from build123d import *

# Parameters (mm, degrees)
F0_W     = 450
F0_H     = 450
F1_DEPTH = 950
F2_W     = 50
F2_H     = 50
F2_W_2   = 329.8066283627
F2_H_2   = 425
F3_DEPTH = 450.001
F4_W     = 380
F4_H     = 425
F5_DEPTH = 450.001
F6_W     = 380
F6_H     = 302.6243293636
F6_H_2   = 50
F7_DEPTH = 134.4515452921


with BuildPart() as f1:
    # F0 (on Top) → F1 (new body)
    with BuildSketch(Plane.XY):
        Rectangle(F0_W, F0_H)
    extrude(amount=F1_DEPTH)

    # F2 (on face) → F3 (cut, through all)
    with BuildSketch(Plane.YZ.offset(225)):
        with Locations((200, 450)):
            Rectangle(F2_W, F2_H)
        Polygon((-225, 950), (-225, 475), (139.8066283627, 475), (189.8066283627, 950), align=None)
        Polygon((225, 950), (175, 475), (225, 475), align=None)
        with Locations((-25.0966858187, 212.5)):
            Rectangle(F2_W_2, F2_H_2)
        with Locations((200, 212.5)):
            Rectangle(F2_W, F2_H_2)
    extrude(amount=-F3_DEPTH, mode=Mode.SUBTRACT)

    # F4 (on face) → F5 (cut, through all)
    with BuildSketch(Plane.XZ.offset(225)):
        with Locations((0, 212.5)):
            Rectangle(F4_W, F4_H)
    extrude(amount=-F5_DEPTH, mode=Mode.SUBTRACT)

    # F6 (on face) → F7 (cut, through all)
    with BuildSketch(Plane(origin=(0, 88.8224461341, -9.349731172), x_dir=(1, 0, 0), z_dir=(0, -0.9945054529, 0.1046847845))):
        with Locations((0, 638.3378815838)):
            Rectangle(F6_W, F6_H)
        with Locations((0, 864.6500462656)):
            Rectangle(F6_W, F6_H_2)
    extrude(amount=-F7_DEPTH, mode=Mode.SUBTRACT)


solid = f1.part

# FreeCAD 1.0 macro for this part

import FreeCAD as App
import Part
import Sketcher


def add_polygon(sketch, points):
    """Adds a closed chain of lines whose ends are joined by coincident constraints."""
    first, n = sketch.GeometryCount, len(points)
    for a, b in zip(points, points[1:] + points[:1]):
        sketch.addGeometry(Part.LineSegment(App.Vector(*a, 0), App.Vector(*b, 0)), False)
    for i in range(n):
        sketch.addConstraint(Sketcher.Constraint("Coincident", first + i, 2, first + (i + 1) % n, 1))

doc = App.newDocument("Part")
body = doc.addObject("PartDesign::Body", "Body")

# Sketch on XY plane
sketch1 = body.newObject("Sketcher::SketchObject", "Sketch")
sketch1.AttachmentSupport = (doc.getObject("XY_Plane"), [""])
sketch1.MapMode = "FlatFace"
add_polygon(sketch1, [(-225, 225), (-225, -225), (225, -225), (225, 225)])  # lines 0-3
sketch1.addConstraint([
    Sketcher.Constraint("Vertical", 0),
    Sketcher.Constraint("Horizontal", 1),
    Sketcher.Constraint("Vertical", 2),
    Sketcher.Constraint("Horizontal", 3),
    Sketcher.Constraint("Symmetric", 0, 2, 2, 2, -1, 1),
    Sketcher.Constraint("Equal", 3, 0),
    Sketcher.Constraint("DistanceX", 1, 1, 1, 2, 450.0),
])
pad1 = body.newObject("PartDesign::Pad", "Pad")
pad1.Profile = sketch1
pad1.Length = 950

# Sketch on YZ plane
sketch2 = body.newObject("Sketcher::SketchObject", "Sketch001")
sketch2.AttachmentSupport = (doc.getObject("YZ_Plane"), [""])
sketch2.MapMode = "FlatFace"
sketch2.AttachmentOffset = App.Placement(App.Vector(0, 0, 225), App.Rotation())
add_polygon(sketch2, [(175, 475), (175, 0), (225, 0), (225, 950)])  # lines 0-3
add_polygon(sketch2, [(-225, 950), (-225, 475), (140, 475), (190, 950)])  # lines 4-7
add_polygon(sketch2, [(-190, 425), (-190, 0), (140, 0), (140, 425)])  # lines 8-11
sketch2.addConstraint([
    Sketcher.Constraint("Vertical", 0),
    Sketcher.Constraint("Horizontal", 1),
    Sketcher.Constraint("Vertical", 2),
    Sketcher.Constraint("Vertical", 4),
    Sketcher.Constraint("Horizontal", 5),
    Sketcher.Constraint("Horizontal", 7),
    Sketcher.Constraint("Vertical", 8),
    Sketcher.Constraint("Horizontal", 9),
    Sketcher.Constraint("Vertical", 10),
    Sketcher.Constraint("Horizontal", 11),
    Sketcher.Constraint("Symmetric", 2, 2, 7, 2, -2),
    Sketcher.Constraint("PointOnObject", 0, 2, -1),
    Sketcher.Constraint("PointOnObject", 8, 2, -1),
    Sketcher.Constraint("Parallel", 3, 6),
    Sketcher.Constraint("Horizontal", 3, 2, 4, 2),
    Sketcher.Constraint("Vertical", 5, 2, 9, 2),
    Sketcher.Constraint("Equal", 0, 4),
    Sketcher.Constraint("DistanceX", 1, 1, 1, 2, 50.0),
    Sketcher.Constraint("DistanceY", 0, 2, 0, 1, 475.0),
    Sketcher.Constraint("DistanceY", 8, 2, 8, 1, 425.0),
    Sketcher.Constraint("DistanceX", -1, 1, 0, 2, 175.0),
    Sketcher.Constraint("DistanceX", 8, 2, -1, 1, 190.0),
    Sketcher.Constraint("DistanceX", 5, 1, 5, 2, 364.806628),
])
pocket1 = body.newObject("PartDesign::Pocket", "Pocket")
pocket1.Profile = sketch2
pocket1.Type = "ThroughAll"

# Sketch on XZ plane
sketch3 = body.newObject("Sketcher::SketchObject", "Sketch002")
sketch3.AttachmentSupport = (doc.getObject("XZ_Plane"), [""])
sketch3.MapMode = "FlatFace"
sketch3.AttachmentOffset = App.Placement(App.Vector(0, 0, 225), App.Rotation())
add_polygon(sketch3, [(-190, 425), (-190, 0), (190, 0), (190, 425)])  # lines 0-3
sketch3.addConstraint([
    Sketcher.Constraint("Vertical", 0),
    Sketcher.Constraint("Horizontal", 1),
    Sketcher.Constraint("Vertical", 2),
    Sketcher.Constraint("Horizontal", 3),
    Sketcher.Constraint("Symmetric", 0, 2, 1, 2, -1, 1),
    Sketcher.Constraint("DistanceX", 1, 1, 1, 2, 380.0),
    Sketcher.Constraint("DistanceY", 0, 2, 0, 1, 425.0),
])
pocket2 = body.newObject("PartDesign::Pocket", "Pocket001")
pocket2.Profile = sketch3
pocket2.Type = "ThroughAll"

# Sketch on an angled plane
sketch4 = body.newObject("Sketcher::SketchObject", "Sketch003")
sketch4.Placement = App.Placement(App.Vector(0, 88.822446, -9.349731), App.Rotation(App.Vector(1, 0, 0), App.Vector(0, 0.104684785, 0.994505453), App.Vector(0, -0.994505453, 0.104684785), "ZXY"))
add_polygon(sketch4, [(-190, 790), (-190, 487), (190, 487), (190, 790)])  # lines 0-3
add_polygon(sketch4, [(-190, 890), (-190, 840), (190, 840), (190, 890)])  # lines 4-7
sketch4.addConstraint([
    Sketcher.Constraint("Vertical", 0),
    Sketcher.Constraint("Horizontal", 1),
    Sketcher.Constraint("Vertical", 2),
    Sketcher.Constraint("Horizontal", 3),
    Sketcher.Constraint("Vertical", 4),
    Sketcher.Constraint("Horizontal", 5),
    Sketcher.Constraint("Vertical", 6),
    Sketcher.Constraint("Horizontal", 7),
    Sketcher.Constraint("Vertical", 3, 2, 4, 2),
    Sketcher.Constraint("Vertical", 2, 2, 5, 2),
    Sketcher.Constraint("DistanceX", 1, 1, 1, 2, 380.0),
    Sketcher.Constraint("DistanceY", 4, 2, 4, 1, 50.0),
    Sketcher.Constraint("DistanceX", 0, 2, -1, 1, 190.0),
    Sketcher.Constraint("DistanceY", 3, 2, 4, 2, 50.0),
    Sketcher.Constraint("DistanceY", 0, 2, 0, 1, 302.624329),
    Sketcher.Constraint("DistanceY", -1, 1, 0, 2, 487.025717),
])
pocket3 = body.newObject("PartDesign::Pocket", "Pocket002")
pocket3.Profile = sketch4
pocket3.Type = "ThroughAll"

doc.recompute()
